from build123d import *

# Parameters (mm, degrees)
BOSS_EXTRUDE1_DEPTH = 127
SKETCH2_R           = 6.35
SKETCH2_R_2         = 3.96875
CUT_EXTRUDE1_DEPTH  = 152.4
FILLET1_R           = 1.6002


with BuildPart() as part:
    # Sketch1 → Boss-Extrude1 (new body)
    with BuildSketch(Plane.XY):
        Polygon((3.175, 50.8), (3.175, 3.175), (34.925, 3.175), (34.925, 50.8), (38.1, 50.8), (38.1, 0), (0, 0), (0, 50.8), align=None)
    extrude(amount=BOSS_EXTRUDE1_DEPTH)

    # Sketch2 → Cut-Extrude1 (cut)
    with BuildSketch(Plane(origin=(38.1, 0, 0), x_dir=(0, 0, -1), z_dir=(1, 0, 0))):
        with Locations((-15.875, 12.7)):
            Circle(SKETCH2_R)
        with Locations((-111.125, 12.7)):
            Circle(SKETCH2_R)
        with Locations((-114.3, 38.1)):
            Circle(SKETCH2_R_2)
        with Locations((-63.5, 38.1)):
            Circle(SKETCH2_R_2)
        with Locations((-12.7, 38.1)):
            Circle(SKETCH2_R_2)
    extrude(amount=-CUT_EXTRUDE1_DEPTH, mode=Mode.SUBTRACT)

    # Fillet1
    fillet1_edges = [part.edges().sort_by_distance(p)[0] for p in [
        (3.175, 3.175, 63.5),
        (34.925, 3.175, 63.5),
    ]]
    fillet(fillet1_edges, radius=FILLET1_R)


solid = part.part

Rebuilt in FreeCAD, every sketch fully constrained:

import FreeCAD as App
import Part
import Sketcher

V = App.Vector
Q = App.Units.Quantity


def edges_at(feature, points):
    """Names of the edges that pass closest to the given points."""
    edges = feature.Shape.Edges
    near = lambda p: min(range(len(edges)), key=lambda i: edges[i].distToShape(Part.Vertex(*p))[0])
    return sorted({f"Edge{near(p) + 1}" for p in points})

doc = App.newDocument("Part")
body = doc.addObject("PartDesign::Body", "Body")

# Sketch on XY plane
sketch1 = doc.addObject("Sketcher::SketchObject", "Sketch")
body.addObject(sketch1)
sketch1.AttachmentSupport = (doc.XY_Plane, [""])
sketch1.MapMode = "FlatFace"
sketch1.addGeometry([
    Part.LineSegment(V(3.2, 3.2, 0), V(3.2, 50.8, 0)),  # 0
    Part.LineSegment(V(3.2, 50.8, 0), V(0, 50.8, 0)),  # 1
    Part.LineSegment(V(0, 50.8, 0), V(0, 0, 0)),  # 2
    Part.LineSegment(V(0, 0, 0), V(38.1, 0, 0)),  # 3
    Part.LineSegment(V(38.1, 0, 0), V(38.1, 50.8, 0)),  # 4
    Part.LineSegment(V(38.1, 50.8, 0), V(34.9, 50.8, 0)),  # 5
    Part.LineSegment(V(34.9, 50.8, 0), V(34.9, 3.2, 0)),  # 6
    Part.LineSegment(V(34.9, 3.2, 0), V(3.2, 3.2, 0)),  # 7
], False)
sketch1.addConstraint([
    Sketcher.Constraint("Coincident", 0, 2, 1, 1),
    Sketcher.Constraint("Coincident", 1, 2, 2, 1),
    Sketcher.Constraint("Coincident", 2, 2, 3, 1),
    Sketcher.Constraint("Coincident", 3, 2, 4, 1),
    Sketcher.Constraint("Coincident", 4, 2, 5, 1),
    Sketcher.Constraint("Coincident", 5, 2, 6, 1),
    Sketcher.Constraint("Coincident", 6, 2, 7, 1),
    Sketcher.Constraint("Coincident", 7, 2, 0, 1),
    Sketcher.Constraint("Vertical", 0),
    Sketcher.Constraint("Horizontal", 1),
    Sketcher.Constraint("Vertical", 2),
    Sketcher.Constraint("Horizontal", 3),
    Sketcher.Constraint("Vertical", 4),
    Sketcher.Constraint("Horizontal", 5),
    Sketcher.Constraint("Vertical", 6),
    Sketcher.Constraint("Horizontal", 7),
    Sketcher.Constraint("Coincident", 2, 2, -1, 1),
    Sketcher.Constraint("Horizontal", 1, 2, 4, 2),
    Sketcher.Constraint("Equal", 1, 5),
    Sketcher.Constraint("DistanceY", 2, 2, 2, 1, Q("2 in")),
    Sketcher.Constraint("DistanceX", 3, 1, 3, 2, Q("1.5 in")),
    Sketcher.Constraint("DistanceX", 7, 2, 7, 1, Q("1.25 in")),
    Sketcher.Constraint("DistanceY", 0, 1, 0, 2, Q("1.875 in")),
])
pad1 = doc.addObject("PartDesign::Pad", "Pad")
body.addObject(pad1)
pad1.Profile = sketch1
pad1.Length = Q("5 in")

# Sketch on YZ plane
sketch2 = doc.addObject("Sketcher::SketchObject", "Sketch001")
body.addObject(sketch2)
sketch2.AttachmentSupport = (doc.YZ_Plane, [""])
sketch2.MapMode = "FlatFace"
sketch2.AttachmentOffset = App.Placement(V(0, 0, 1.5 * 25.4), App.Rotation())
sketch2.addGeometry([
    Part.Circle(V(12.7, 15.9, 0), V(0, 0, 1), 6.3),  # 0
    Part.Circle(V(12.7, 111.1, 0), V(0, 0, 1), 6.3),  # 1
    Part.Circle(V(38.1, 114.3, 0), V(0, 0, 1), 4),  # 2
    Part.Circle(V(38.1, 63.5, 0), V(0, 0, 1), 4),  # 3
    Part.Circle(V(38.1, 12.7, 0), V(0, 0, 1), 4),  # 4
], False)
sketch2.addConstraint([
    Sketcher.Constraint("Equal", 0, 1),
    Sketcher.Constraint("Equal", 2, 3),
    Sketcher.Constraint("Equal", 3, 4),
    Sketcher.Constraint("Vertical", 0, 3, 1, 3),
    Sketcher.Constraint("Vertical", 2, 3, 3, 3),
    Sketcher.Constraint("Vertical", 3, 3, 4, 3),
    Sketcher.Constraint("Diameter", 0, Q("0.5 in")),
    Sketcher.Constraint("Diameter", 2, Q("0.3125 in")),
    Sketcher.Constraint("DistanceX", 1, 3, 2, 3, Q("1 in")),
    Sketcher.Constraint("DistanceY", 3, 3, 2, 3, Q("2 in")),
    Sketcher.Constraint("DistanceY", 4, 3, 3, 3, Q("2 in")),
    Sketcher.Constraint("DistanceX", -1, 1, 0, 3, Q("0.5 in")),
    Sketcher.Constraint("DistanceY", -1, 1, 2, 3, Q("4.5 in")),
    Sketcher.Constraint("DistanceY", 0, 3, 1, 3, Q("3.75 in")),
    Sketcher.Constraint("DistanceY", -1, 1, 0, 3, Q("0.625 in")),
])
pocket1 = doc.addObject("PartDesign::Pocket", "Pocket")
body.addObject(pocket1)
pocket1.Profile = sketch2
pocket1.Length = Q("6 in")
doc.recompute()

fillet = doc.addObject("PartDesign::Fillet", "Fillet")
body.addObject(fillet)
fillet.Base = (pocket1, edges_at(pocket1, [(3.175, 3.175, 63.5), (34.925, 3.175, 63.5)]))
fillet.Radius = Q("0.063 in")

doc.recompute()
